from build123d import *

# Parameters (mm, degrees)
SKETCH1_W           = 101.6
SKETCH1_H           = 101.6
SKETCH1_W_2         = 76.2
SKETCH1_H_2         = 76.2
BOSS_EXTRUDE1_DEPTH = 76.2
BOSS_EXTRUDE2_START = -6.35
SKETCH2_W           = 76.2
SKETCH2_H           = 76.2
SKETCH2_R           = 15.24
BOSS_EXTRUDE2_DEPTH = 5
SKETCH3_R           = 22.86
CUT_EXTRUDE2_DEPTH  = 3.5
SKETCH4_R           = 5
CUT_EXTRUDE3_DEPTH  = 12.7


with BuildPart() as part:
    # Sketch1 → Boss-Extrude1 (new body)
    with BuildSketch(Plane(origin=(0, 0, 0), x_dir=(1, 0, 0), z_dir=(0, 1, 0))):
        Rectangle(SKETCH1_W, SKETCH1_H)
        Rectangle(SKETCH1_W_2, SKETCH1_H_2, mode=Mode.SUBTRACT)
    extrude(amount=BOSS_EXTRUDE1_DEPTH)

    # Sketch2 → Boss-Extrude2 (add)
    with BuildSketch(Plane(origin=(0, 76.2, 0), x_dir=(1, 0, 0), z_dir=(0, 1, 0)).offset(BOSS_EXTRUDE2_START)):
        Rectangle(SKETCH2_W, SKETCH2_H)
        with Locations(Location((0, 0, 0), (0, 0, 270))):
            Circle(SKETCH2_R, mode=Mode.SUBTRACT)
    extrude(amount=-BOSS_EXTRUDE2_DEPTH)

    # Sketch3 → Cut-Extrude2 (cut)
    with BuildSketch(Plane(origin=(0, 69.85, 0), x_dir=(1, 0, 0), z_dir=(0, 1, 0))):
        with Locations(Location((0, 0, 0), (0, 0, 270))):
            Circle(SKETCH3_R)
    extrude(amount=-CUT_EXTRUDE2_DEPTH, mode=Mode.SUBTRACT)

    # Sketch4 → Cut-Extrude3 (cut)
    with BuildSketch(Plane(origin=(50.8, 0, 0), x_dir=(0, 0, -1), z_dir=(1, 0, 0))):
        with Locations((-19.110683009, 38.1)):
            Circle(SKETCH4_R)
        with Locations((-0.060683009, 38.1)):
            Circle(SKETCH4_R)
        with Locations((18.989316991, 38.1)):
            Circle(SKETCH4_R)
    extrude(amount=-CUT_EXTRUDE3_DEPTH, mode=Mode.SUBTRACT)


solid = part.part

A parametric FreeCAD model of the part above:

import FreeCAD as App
import Part
import Sketcher

V = App.Vector
Q = App.Units.Quantity

doc = App.newDocument("Part")
body = doc.addObject("PartDesign::Body", "Body")

# Sketch on XZ plane
sketch1 = body.newObject("Sketcher::SketchObject", "Sketch")
sketch1.AttachmentSupport = (doc.getObject("XZ_Plane"), [""])
sketch1.MapMode = "FlatFace"
sketch1.addGeometry(Part.LineSegment(V(-51, -51, 0), V(-51, 51, 0)), False)
sketch1.addGeometry(Part.LineSegment(V(-51, 51, 0), V(51, 51, 0)), False)
sketch1.addGeometry(Part.LineSegment(V(51, 51, 0), V(51, -51, 0)), False)
sketch1.addGeometry(Part.LineSegment(V(51, -51, 0), V(-51, -51, 0)), False)
sketch1.addGeometry(Part.LineSegment(V(38, 38, 0), V(-38, 38, 0)), False)
sketch1.addGeometry(Part.LineSegment(V(-38, 38, 0), V(-38, -38, 0)), False)
sketch1.addGeometry(Part.LineSegment(V(-38, -38, 0), V(38, -38, 0)), False)
sketch1.addGeometry(Part.LineSegment(V(38, -38, 0), V(38, 38, 0)), False)
sketch1.addConstraint(Sketcher.Constraint("Coincident", 0, 2, 1, 1))
sketch1.addConstraint(Sketcher.Constraint("Coincident", 1, 2, 2, 1))
sketch1.addConstraint(Sketcher.Constraint("Coincident", 2, 2, 3, 1))
sketch1.addConstraint(Sketcher.Constraint("Coincident", 3, 2, 0, 1))
sketch1.addConstraint(Sketcher.Constraint("Coincident", 4, 2, 5, 1))
sketch1.addConstraint(Sketcher.Constraint("Coincident", 5, 2, 6, 1))
sketch1.addConstraint(Sketcher.Constraint("Coincident", 6, 2, 7, 1))
sketch1.addConstraint(Sketcher.Constraint("Coincident", 7, 2, 4, 1))
sketch1.addConstraint(Sketcher.Constraint("Vertical", 0))
sketch1.addConstraint(Sketcher.Constraint("Horizontal", 1))
sketch1.addConstraint(Sketcher.Constraint("Vertical", 2))
sketch1.addConstraint(Sketcher.Constraint("Horizontal", 3))
sketch1.addConstraint(Sketcher.Constraint("Horizontal", 4))
sketch1.addConstraint(Sketcher.Constraint("Vertical", 5))
sketch1.addConstraint(Sketcher.Constraint("Horizontal", 6))
sketch1.addConstraint(Sketcher.Constraint("Vertical", 7))
sketch1.addConstraint(Sketcher.Constraint("Symmetric", 0, 2, 2, 2, -1, 1))
sketch1.addConstraint(Sketcher.Constraint("Symmetric", 4, 2, 6, 2, -1, 1))
sketch1.addConstraint(Sketcher.Constraint("Equal", 3, 0))
sketch1.addConstraint(Sketcher.Constraint("Equal", 6, 5))
sketch1.addConstraint(Sketcher.Constraint("DistanceX", 1, 1, 1, 2, Q("4 in")))
sketch1.addConstraint(Sketcher.Constraint("DistanceX", 4, 2, 4, 1, Q("3 in")))
pad1 = body.newObject("PartDesign::Pad", "Pad")
pad1.Profile = sketch1
pad1.Length = Q("3 in")
pad1.Reversed = True

# Sketch on XZ plane
sketch2 = body.newObject("Sketcher::SketchObject", "Sketch001")
sketch2.AttachmentSupport = (doc.getObject("XZ_Plane"), [""])
sketch2.MapMode = "FlatFace"
sketch2.AttachmentOffset = App.Placement(V(0, 0, -2.75 * 25.4), App.Rotation())
sketch2.addGeometry(Part.LineSegment(V(-38, -38, 0), V(-38, 38, 0)), False)
sketch2.addGeometry(Part.LineSegment(V(-38, 38, 0), V(38, 38, 0)), False)
sketch2.addGeometry(Part.LineSegment(V(38, 38, 0), V(38, -38, 0)), False)
sketch2.addGeometry(Part.LineSegment(V(38, -38, 0), V(-38, -38, 0)), False)
sketch2.addGeometry(Part.Circle(V(0, 0, 0), V(0, 0, 1), 15), False)
sketch2.addConstraint(Sketcher.Constraint("Coincident", 0, 2, 1, 1))
sketch2.addConstraint(Sketcher.Constraint("Coincident", 1, 2, 2, 1))
sketch2.addConstraint(Sketcher.Constraint("Coincident", 2, 2, 3, 1))
sketch2.addConstraint(Sketcher.Constraint("Coincident", 3, 2, 0, 1))
sketch2.addConstraint(Sketcher.Constraint("Vertical", 0))
sketch2.addConstraint(Sketcher.Constraint("Horizontal", 1))
sketch2.addConstraint(Sketcher.Constraint("Vertical", 2))
sketch2.addConstraint(Sketcher.Constraint("Horizontal", 3))
sketch2.addConstraint(Sketcher.Constraint("Coincident", 4, 3, -1, 1))
sketch2.addConstraint(Sketcher.Constraint("Symmetric", 0, 2, 2, 2, -1, 1))
sketch2.addConstraint(Sketcher.Constraint("Equal", 3, 0))
sketch2.addConstraint(Sketcher.Constraint("Diameter", 4, Q("1.2 in")))
sketch2.addConstraint(Sketcher.Constraint("DistanceX", 1, 1, 1, 2, Q("3 in")))
pad2 = body.newObject("PartDesign::Pad", "Pad001")
pad2.Profile = sketch2
pad2.Length = 5

# Sketch on XZ plane
sketch3 = body.newObject("Sketcher::SketchObject", "Sketch002")
sketch3.AttachmentSupport = (doc.getObject("XZ_Plane"), [""])
sketch3.MapMode = "FlatFace"
sketch3.AttachmentOffset = App.Placement(V(0, 0, -2.75 * 25.4), App.Rotation())
sketch3.addGeometry(Part.Circle(V(0, 0, 0), V(0, 0, 1), 23), False)
sketch3.addConstraint(Sketcher.Constraint("Coincident", 0, 3, -1, 1))
sketch3.addConstraint(Sketcher.Constraint("Diameter", 0, Q("1.8 in")))
pocket1 = body.newObject("PartDesign::Pocket", "Pocket")
pocket1.Profile = sketch3
pocket1.Length = 3.5
pocket1.Reversed = True

# Sketch on YZ plane
sketch4 = body.newObject("Sketcher::SketchObject", "Sketch003")
sketch4.AttachmentSupport = (doc.getObject("YZ_Plane"), [""])
sketch4.MapMode = "FlatFace"
sketch4.AttachmentOffset = App.Placement(V(0, 0, 2 * 25.4), App.Rotation())
sketch4.addGeometry(Part.Circle(V(38, 19, 0), V(0, 0, 1), 5), False)
sketch4.addGeometry(Part.Circle(V(38, 0, 0), V(0, 0, 1), 5), False)
sketch4.addGeometry(Part.Circle(V(38, -19, 0), V(0, 0, 1), 5), False)
sketch4.addConstraint(Sketcher.Constraint("Equal", 0, 1))
sketch4.addConstraint(Sketcher.Constraint("Equal", 1, 2))
sketch4.addConstraint(Sketcher.Constraint("Vertical", 0, 3, 1, 3))
sketch4.addConstraint(Sketcher.Constraint("Vertical", 1, 3, 2, 3))
sketch4.addConstraint(Sketcher.Constraint("DistanceX", -1, 1, 0, 3, Q("1.5 in")))
sketch4.addConstraint(Sketcher.Constraint("DistanceY", 2, 3, 0, 3, Q("1.5 in")))
sketch4.addConstraint(Sketcher.Constraint("Diameter", 0, 10.0))
sketch4.addConstraint(Sketcher.Constraint("DistanceY", 1, 3, 0, 3, Q("0.75 in")))
sketch4.addConstraint(Sketcher.Constraint("DistanceY", -1, 1, 0, 3, 19.110683))
pocket2 = body.newObject("PartDesign::Pocket", "Pocket001")
pocket2.Profile = sketch4
pocket2.Length = Q("0.5 in")

doc.recompute()
